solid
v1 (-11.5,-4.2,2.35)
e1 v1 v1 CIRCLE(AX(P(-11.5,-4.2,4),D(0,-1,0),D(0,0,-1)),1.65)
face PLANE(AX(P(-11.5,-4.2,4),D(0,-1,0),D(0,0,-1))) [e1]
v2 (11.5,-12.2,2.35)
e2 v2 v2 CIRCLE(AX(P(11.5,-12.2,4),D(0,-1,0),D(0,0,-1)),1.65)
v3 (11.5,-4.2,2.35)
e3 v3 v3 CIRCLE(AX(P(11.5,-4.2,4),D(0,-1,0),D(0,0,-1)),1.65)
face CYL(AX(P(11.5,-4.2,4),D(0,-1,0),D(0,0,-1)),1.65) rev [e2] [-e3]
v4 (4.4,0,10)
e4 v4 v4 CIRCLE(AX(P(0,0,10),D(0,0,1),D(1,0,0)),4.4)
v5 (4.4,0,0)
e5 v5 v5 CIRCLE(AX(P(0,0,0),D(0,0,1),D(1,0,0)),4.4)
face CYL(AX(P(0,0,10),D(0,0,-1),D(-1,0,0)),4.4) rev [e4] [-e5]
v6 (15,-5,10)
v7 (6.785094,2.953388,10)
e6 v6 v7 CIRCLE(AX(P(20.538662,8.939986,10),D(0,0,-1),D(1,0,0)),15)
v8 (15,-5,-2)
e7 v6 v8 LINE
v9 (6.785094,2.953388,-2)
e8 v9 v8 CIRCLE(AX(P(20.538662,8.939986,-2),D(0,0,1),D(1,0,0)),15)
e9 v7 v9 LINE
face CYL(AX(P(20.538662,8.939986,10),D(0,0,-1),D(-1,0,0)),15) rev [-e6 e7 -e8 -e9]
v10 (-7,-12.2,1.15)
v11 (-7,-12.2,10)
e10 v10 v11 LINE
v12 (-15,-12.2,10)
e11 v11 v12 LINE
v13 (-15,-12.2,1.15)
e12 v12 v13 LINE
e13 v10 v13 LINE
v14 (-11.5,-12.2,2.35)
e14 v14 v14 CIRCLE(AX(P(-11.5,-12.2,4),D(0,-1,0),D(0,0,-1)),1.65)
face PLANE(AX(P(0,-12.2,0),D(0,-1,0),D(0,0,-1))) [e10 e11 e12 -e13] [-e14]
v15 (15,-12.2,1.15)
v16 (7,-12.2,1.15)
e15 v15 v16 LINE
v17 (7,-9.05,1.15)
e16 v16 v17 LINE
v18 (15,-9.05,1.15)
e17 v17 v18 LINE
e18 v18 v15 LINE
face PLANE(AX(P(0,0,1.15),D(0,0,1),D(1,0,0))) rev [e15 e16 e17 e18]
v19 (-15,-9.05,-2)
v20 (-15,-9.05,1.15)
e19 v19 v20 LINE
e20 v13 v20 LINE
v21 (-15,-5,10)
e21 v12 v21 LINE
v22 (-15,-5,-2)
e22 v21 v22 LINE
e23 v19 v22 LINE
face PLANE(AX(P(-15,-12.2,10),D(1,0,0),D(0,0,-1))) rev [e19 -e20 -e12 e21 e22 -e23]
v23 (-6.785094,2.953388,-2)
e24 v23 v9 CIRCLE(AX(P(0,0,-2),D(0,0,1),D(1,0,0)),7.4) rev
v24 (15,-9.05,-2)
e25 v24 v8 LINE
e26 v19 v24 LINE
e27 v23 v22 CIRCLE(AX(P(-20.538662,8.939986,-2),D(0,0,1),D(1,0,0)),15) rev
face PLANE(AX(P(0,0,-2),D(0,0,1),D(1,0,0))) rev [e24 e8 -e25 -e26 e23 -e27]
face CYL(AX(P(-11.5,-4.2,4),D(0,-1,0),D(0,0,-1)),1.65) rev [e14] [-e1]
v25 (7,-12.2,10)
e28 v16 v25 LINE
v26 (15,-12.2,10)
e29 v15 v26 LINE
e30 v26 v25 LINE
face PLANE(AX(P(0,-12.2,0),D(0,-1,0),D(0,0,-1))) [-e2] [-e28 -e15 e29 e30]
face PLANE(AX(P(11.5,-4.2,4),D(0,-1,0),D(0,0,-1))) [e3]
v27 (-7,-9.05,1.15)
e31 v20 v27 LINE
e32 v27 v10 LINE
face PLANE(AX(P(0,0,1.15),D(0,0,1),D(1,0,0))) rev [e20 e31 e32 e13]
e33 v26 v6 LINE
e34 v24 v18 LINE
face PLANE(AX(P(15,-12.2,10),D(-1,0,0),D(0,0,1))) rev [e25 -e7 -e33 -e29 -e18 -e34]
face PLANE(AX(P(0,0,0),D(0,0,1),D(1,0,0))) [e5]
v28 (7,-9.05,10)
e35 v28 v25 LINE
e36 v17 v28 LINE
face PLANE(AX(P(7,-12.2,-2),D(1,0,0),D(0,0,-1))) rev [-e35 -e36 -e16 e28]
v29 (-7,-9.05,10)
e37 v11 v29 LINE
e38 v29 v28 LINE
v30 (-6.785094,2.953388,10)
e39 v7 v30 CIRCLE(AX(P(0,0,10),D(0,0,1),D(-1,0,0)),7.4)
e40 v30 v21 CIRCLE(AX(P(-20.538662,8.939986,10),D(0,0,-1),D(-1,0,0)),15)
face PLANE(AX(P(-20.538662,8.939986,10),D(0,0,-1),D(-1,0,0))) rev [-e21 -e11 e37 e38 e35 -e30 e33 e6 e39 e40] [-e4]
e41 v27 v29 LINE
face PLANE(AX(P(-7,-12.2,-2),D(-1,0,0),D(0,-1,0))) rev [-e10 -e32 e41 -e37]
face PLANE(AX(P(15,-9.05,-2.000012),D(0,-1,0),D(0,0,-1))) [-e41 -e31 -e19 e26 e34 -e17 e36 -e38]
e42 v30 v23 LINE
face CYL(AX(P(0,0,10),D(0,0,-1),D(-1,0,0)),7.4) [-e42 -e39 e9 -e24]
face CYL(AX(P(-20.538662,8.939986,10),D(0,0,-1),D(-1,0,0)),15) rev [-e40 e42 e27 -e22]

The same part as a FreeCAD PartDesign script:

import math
import FreeCAD as App
import Part
import Sketcher
from FreeCAD import Vector
Q = App.Units.Quantity

doc = App.newDocument("Part")
body = doc.addObject("PartDesign::Body", "Body")

# Sketch on XY plane
sketch1 = body.newObject("Sketcher::SketchObject", "Sketch")
sketch1.AttachmentSupport = (doc.getObject("XY_Plane"), [""])
sketch1.MapMode = "FlatFace"
sketch1.addGeometry(Part.LineSegment(Vector(-15, -5, 0), Vector(15, -5, 0)), False)
sketch1.addGeometry(Part.ArcOfCircle(Part.Circle(Vector(20.5, 8.9, 0), Vector(0, 0, 1), 15), math.radians(-156), math.radians(-112)), False)
sketch1.addGeometry(Part.ArcOfCircle(Part.Circle(Vector(0, 0, 0), Vector(0, 0, 1), 7.4), math.radians(24), math.radians(156)), False)
sketch1.addGeometry(Part.ArcOfCircle(Part.Circle(Vector(-20.5, 8.9, 0), Vector(0, 0, 1), 15), math.radians(-68), math.radians(-24)), False)
sketch1.addGeometry(Part.Circle(Vector(0, 0, 0), Vector(0, 0, 1), 4.4), False)
sketch1.addConstraint(Sketcher.Constraint("Coincident", 0, 2, 1, 2))
sketch1.addConstraint(Sketcher.Constraint("Tangent", 1, 1, 2, 1))
sketch1.addConstraint(Sketcher.Constraint("Tangent", 2, 2, 3, 2))
sketch1.addConstraint(Sketcher.Constraint("Coincident", 3, 1, 0, 1))
sketch1.addConstraint(Sketcher.Constraint("Horizontal", 0))
sketch1.addConstraint(Sketcher.Constraint("Coincident", 2, 3, -1, 1))
sketch1.addConstraint(Sketcher.Constraint("Coincident", 4, 3, -1, 1))
sketch1.addConstraint(Sketcher.Constraint("Equal", 1, 3))
sketch1.addConstraint(Sketcher.Constraint("Horizontal", 1, 3, 3, 3))
sketch1.addConstraint(Sketcher.Constraint("Radius", 1, Q("15 mm")))
sketch1.addConstraint(Sketcher.Constraint("Diameter", 4, Q("8.8 mm")))
sketch1.addConstraint(Sketcher.Constraint("Radius", 2, Q("7.4 mm")))
sketch1.addConstraint(Sketcher.Constraint("DistanceX", 0, 1, 0, 2, Q("30 mm")))
sketch1.addConstraint(Sketcher.Constraint("DistanceY", 0, 2, -1, 1, Q("5 mm")))
pad1 = body.newObject("PartDesign::Pad", "Pad")
pad1.Profile = sketch1
pad1.Length = 10

# Sketch on XY plane
sketch2 = body.newObject("Sketcher::SketchObject", "Sketch001")
sketch2.AttachmentSupport = (doc.getObject("XY_Plane"), [""])
sketch2.MapMode = "FlatFace"
sketch2.addGeometry(Part.ArcOfCircle(Part.Circle(Vector(0, 0, 0), Vector(0, 0, 1), 7), math.radians(24), math.radians(156)), False)
sketch2.addGeometry(Part.ArcOfCircle(Part.Circle(Vector(-21, 9, 0), Vector(0, 0, 1), 15), math.radians(-68), math.radians(-24)), False)
sketch2.addGeometry(Part.LineSegment(Vector(-15, -5, 0), Vector(15, -5, 0)), False)
sketch2.addGeometry(Part.ArcOfCircle(Part.Circle(Vector(21, 9, 0), Vector(0, 0, 1), 15), math.radians(-156), math.radians(-112)), False)
sketch2.addConstraint(Sketcher.Constraint("Tangent", 0, 2, 1, 2))
sketch2.addConstraint(Sketcher.Constraint("Coincident", 1, 1, 2, 1))
sketch2.addConstraint(Sketcher.Constraint("Coincident", 2, 2, 3, 2))
sketch2.addConstraint(Sketcher.Constraint("Tangent", 3, 1, 0, 1))
sketch2.addConstraint(Sketcher.Constraint("Horizontal", 2))
sketch2.addConstraint(Sketcher.Constraint("Coincident", 0, 3, -1, 1))
sketch2.addConstraint(Sketcher.Constraint("Equal", 1, 3))
sketch2.addConstraint(Sketcher.Constraint("Horizontal", 1, 3, 3, 3))
sketch2.addConstraint(Sketcher.Constraint("Radius", 1, Q("15 mm")))
sketch2.addConstraint(Sketcher.Constraint("Radius", 0, Q("7.4 mm")))
sketch2.addConstraint(Sketcher.Constraint("DistanceX", 2, 1, 2, 2, Q("30 mm")))
sketch2.addConstraint(Sketcher.Constraint("DistanceY", 1, 1, -1, 1, Q("5 mm")))
pad2 = body.newObject("PartDesign::Pad", "Pad001")
pad2.Profile = sketch2
pad2.Length = 2
pad2.Reversed = True

# Sketch on XZ plane
sketch3 = body.newObject("Sketcher::SketchObject", "Sketch002")
sketch3.AttachmentSupport = (doc.getObject("XZ_Plane"), [""])
sketch3.MapMode = "FlatFace"
sketch3.AttachmentOffset = App.Placement(Vector(0, 0, 5), App.Rotation())
sketch3.addGeometry(Part.LineSegment(Vector(-15, 10, 0), Vector(-15, -2, 0)), False)
sketch3.addGeometry(Part.LineSegment(Vector(-15, -2, 0), Vector(15, -2, 0)), False)
sketch3.addGeometry(Part.LineSegment(Vector(15, -2, 0), Vector(15, 10, 0)), False)
sketch3.addGeometry(Part.LineSegment(Vector(15, 10, 0), Vector(-15, 10, 0)), False)
sketch3.addConstraint(Sketcher.Constraint("Coincident", 0, 2, 1, 1))
sketch3.addConstraint(Sketcher.Constraint("Coincident", 1, 2, 2, 1))
sketch3.addConstraint(Sketcher.Constraint("Coincident", 2, 2, 3, 1))
sketch3.addConstraint(Sketcher.Constraint("Coincident", 3, 2, 0, 1))
sketch3.addConstraint(Sketcher.Constraint("Vertical", 0))
sketch3.addConstraint(Sketcher.Constraint("Horizontal", 1))
sketch3.addConstraint(Sketcher.Constraint("Vertical", 2))
sketch3.addConstraint(Sketcher.Constraint("Horizontal", 3))
sketch3.addConstraint(Sketcher.Constraint("DistanceX", 1, 1, 1, 2, Q("30 mm")))
sketch3.addConstraint(Sketcher.Constraint("DistanceY", 0, 2, 0, 1, Q("12 mm")))
sketch3.addConstraint(Sketcher.Constraint("DistanceX", 0, 2, -1, 1, Q("15 mm")))
sketch3.addConstraint(Sketcher.Constraint("DistanceY", 0, 2, -1, 1, Q("2 mm")))
pad3 = body.newObject("PartDesign::Pad", "Pad002")
pad3.Profile = sketch3
pad3.Length = 7.2

# Sketch on XZ plane
sketch4 = body.newObject("Sketcher::SketchObject", "Sketch003")
sketch4.AttachmentSupport = (doc.getObject("XZ_Plane"), [""])
sketch4.MapMode = "FlatFace"
sketch4.AttachmentOffset = App.Placement(Vector(0, 0, 12.2), App.Rotation())
sketch4.addGeometry(Part.Circle(Vector(-11.5, 4, 0), Vector(0, 0, 1), 1.6), False)
sketch4.addGeometry(Part.Circle(Vector(11.5, 4, 0), Vector(0, 0, 1), 1.6), False)
sketch4.addConstraint(Sketcher.Constraint("Equal", 0, 1))
sketch4.addConstraint(Sketcher.Constraint("Symmetric", 0, 3, 1, 3, -2))
sketch4.addConstraint(Sketcher.Constraint("Diameter", 0, Q("3.3 mm")))
sketch4.addConstraint(Sketcher.Constraint("DistanceY", -1, 1, 0, 3, Q("4 mm")))
sketch4.addConstraint(Sketcher.Constraint("DistanceX", 0, 3, 1, 3, Q("23 mm")))
pocket1 = body.newObject("PartDesign::Pocket", "Pocket")
pocket1.Profile = sketch4
pocket1.Length = 8

# Sketch on XY plane
sketch5 = body.newObject("Sketcher::SketchObject", "Sketch004")
sketch5.AttachmentSupport = (doc.getObject("XY_Plane"), [""])
sketch5.MapMode = "FlatFace"
sketch5.AttachmentOffset = App.Placement(Vector(0, 0, -2), App.Rotation())
sketch5.addGeometry(Part.LineSegment(Vector(15, -9.1, 0), Vector(15, -12.2, 0)), False)
sketch5.addGeometry(Part.LineSegment(Vector(15, -12.2, 0), Vector(-15, -12.2, 0)), False)
sketch5.addGeometry(Part.LineSegment(Vector(-15, -12.2, 0), Vector(-15, -9.1, 0)), False)
sketch5.addGeometry(Part.LineSegment(Vector(-15, -9.1, 0), Vector(15, -9.1, 0)), False)
sketch5.addConstraint(Sketcher.Constraint("Coincident", 0, 2, 1, 1))
sketch5.addConstraint(Sketcher.Constraint("Coincident", 1, 2, 2, 1))
sketch5.addConstraint(Sketcher.Constraint("Coincident", 2, 2, 3, 1))
sketch5.addConstraint(Sketcher.Constraint("Coincident", 3, 2, 0, 1))
sketch5.addConstraint(Sketcher.Constraint("Vertical", 0))
sketch5.addConstraint(Sketcher.Constraint("Horizontal", 1))
sketch5.addConstraint(Sketcher.Constraint("Vertical", 2))
sketch5.addConstraint(Sketcher.Constraint("Horizontal", 3))
sketch5.addConstraint(Sketcher.Constraint("DistanceX", 1, 2, 1, 1, Q("30 mm")))
sketch5.addConstraint(Sketcher.Constraint("DistanceX", -1, 1, 0, 2, Q("15 mm")))
sketch5.addConstraint(Sketcher.Constraint("DistanceY", 0, 2, 0, 1, Q("3.15 mm")))
sketch5.addConstraint(Sketcher.Constraint("DistanceY", 0, 2, -1, 1, Q("12.2 mm")))
pocket2 = body.newObject("PartDesign::Pocket", "Pocket001")
pocket2.Profile = sketch5
pocket2.Type = "TwoLengths"
pocket2.Length = 23.756098
pocket2.Length2 = 3.15

# Sketch on XY plane
sketch6 = body.newObject("Sketcher::SketchObject", "Sketch005")
sketch6.AttachmentSupport = (doc.getObject("XY_Plane"), [""])
sketch6.MapMode = "FlatFace"
sketch6.AttachmentOffset = App.Placement(Vector(0, 0, 10), App.Rotation())
sketch6.addGeometry(Part.LineSegment(Vector(-7, -9.1, 0), Vector(-7, -12.2, 0)), False)
sketch6.addGeometry(Part.LineSegment(Vector(-7, -12.2, 0), Vector(7, -12.2, 0)), False)
sketch6.addGeometry(Part.LineSegment(Vector(7, -12.2, 0), Vector(7, -9.1, 0)), False)
sketch6.addGeometry(Part.LineSegment(Vector(7, -9.1, 0), Vector(-7, -9.1, 0)), False)
sketch6.addConstraint(Sketcher.Constraint("Coincident", 0, 2, 1, 1))
sketch6.addConstraint(Sketcher.Constraint("Coincident", 1, 2, 2, 1))
sketch6.addConstraint(Sketcher.Constraint("Coincident", 2, 2, 3, 1))
sketch6.addConstraint(Sketcher.Constraint("Coincident", 3, 2, 0, 1))
sketch6.addConstraint(Sketcher.Constraint("Vertical", 0))
sketch6.addConstraint(Sketcher.Constraint("Horizontal", 1))
sketch6.addConstraint(Sketcher.Constraint("Vertical", 2))
sketch6.addConstraint(Sketcher.Constraint("Horizontal", 3))
sketch6.addConstraint(Sketcher.Constraint("DistanceX", 1, 1, 1, 2, Q("14 mm")))
sketch6.addConstraint(Sketcher.Constraint("DistanceX", 0, 2, -1, 1, Q("7 mm")))
sketch6.addConstraint(Sketcher.Constraint("DistanceY", 0, 2, 0, 1, Q("3.15 mm")))
sketch6.addConstraint(Sketcher.Constraint("DistanceY", 0, 2, -1, 1, Q("12.2 mm")))
pocket3 = body.newObject("PartDesign::Pocket", "Pocket002")
pocket3.Profile = sketch6
pocket3.Type = "ThroughAll"
pocket3.Midplane = True

doc.recompute()
